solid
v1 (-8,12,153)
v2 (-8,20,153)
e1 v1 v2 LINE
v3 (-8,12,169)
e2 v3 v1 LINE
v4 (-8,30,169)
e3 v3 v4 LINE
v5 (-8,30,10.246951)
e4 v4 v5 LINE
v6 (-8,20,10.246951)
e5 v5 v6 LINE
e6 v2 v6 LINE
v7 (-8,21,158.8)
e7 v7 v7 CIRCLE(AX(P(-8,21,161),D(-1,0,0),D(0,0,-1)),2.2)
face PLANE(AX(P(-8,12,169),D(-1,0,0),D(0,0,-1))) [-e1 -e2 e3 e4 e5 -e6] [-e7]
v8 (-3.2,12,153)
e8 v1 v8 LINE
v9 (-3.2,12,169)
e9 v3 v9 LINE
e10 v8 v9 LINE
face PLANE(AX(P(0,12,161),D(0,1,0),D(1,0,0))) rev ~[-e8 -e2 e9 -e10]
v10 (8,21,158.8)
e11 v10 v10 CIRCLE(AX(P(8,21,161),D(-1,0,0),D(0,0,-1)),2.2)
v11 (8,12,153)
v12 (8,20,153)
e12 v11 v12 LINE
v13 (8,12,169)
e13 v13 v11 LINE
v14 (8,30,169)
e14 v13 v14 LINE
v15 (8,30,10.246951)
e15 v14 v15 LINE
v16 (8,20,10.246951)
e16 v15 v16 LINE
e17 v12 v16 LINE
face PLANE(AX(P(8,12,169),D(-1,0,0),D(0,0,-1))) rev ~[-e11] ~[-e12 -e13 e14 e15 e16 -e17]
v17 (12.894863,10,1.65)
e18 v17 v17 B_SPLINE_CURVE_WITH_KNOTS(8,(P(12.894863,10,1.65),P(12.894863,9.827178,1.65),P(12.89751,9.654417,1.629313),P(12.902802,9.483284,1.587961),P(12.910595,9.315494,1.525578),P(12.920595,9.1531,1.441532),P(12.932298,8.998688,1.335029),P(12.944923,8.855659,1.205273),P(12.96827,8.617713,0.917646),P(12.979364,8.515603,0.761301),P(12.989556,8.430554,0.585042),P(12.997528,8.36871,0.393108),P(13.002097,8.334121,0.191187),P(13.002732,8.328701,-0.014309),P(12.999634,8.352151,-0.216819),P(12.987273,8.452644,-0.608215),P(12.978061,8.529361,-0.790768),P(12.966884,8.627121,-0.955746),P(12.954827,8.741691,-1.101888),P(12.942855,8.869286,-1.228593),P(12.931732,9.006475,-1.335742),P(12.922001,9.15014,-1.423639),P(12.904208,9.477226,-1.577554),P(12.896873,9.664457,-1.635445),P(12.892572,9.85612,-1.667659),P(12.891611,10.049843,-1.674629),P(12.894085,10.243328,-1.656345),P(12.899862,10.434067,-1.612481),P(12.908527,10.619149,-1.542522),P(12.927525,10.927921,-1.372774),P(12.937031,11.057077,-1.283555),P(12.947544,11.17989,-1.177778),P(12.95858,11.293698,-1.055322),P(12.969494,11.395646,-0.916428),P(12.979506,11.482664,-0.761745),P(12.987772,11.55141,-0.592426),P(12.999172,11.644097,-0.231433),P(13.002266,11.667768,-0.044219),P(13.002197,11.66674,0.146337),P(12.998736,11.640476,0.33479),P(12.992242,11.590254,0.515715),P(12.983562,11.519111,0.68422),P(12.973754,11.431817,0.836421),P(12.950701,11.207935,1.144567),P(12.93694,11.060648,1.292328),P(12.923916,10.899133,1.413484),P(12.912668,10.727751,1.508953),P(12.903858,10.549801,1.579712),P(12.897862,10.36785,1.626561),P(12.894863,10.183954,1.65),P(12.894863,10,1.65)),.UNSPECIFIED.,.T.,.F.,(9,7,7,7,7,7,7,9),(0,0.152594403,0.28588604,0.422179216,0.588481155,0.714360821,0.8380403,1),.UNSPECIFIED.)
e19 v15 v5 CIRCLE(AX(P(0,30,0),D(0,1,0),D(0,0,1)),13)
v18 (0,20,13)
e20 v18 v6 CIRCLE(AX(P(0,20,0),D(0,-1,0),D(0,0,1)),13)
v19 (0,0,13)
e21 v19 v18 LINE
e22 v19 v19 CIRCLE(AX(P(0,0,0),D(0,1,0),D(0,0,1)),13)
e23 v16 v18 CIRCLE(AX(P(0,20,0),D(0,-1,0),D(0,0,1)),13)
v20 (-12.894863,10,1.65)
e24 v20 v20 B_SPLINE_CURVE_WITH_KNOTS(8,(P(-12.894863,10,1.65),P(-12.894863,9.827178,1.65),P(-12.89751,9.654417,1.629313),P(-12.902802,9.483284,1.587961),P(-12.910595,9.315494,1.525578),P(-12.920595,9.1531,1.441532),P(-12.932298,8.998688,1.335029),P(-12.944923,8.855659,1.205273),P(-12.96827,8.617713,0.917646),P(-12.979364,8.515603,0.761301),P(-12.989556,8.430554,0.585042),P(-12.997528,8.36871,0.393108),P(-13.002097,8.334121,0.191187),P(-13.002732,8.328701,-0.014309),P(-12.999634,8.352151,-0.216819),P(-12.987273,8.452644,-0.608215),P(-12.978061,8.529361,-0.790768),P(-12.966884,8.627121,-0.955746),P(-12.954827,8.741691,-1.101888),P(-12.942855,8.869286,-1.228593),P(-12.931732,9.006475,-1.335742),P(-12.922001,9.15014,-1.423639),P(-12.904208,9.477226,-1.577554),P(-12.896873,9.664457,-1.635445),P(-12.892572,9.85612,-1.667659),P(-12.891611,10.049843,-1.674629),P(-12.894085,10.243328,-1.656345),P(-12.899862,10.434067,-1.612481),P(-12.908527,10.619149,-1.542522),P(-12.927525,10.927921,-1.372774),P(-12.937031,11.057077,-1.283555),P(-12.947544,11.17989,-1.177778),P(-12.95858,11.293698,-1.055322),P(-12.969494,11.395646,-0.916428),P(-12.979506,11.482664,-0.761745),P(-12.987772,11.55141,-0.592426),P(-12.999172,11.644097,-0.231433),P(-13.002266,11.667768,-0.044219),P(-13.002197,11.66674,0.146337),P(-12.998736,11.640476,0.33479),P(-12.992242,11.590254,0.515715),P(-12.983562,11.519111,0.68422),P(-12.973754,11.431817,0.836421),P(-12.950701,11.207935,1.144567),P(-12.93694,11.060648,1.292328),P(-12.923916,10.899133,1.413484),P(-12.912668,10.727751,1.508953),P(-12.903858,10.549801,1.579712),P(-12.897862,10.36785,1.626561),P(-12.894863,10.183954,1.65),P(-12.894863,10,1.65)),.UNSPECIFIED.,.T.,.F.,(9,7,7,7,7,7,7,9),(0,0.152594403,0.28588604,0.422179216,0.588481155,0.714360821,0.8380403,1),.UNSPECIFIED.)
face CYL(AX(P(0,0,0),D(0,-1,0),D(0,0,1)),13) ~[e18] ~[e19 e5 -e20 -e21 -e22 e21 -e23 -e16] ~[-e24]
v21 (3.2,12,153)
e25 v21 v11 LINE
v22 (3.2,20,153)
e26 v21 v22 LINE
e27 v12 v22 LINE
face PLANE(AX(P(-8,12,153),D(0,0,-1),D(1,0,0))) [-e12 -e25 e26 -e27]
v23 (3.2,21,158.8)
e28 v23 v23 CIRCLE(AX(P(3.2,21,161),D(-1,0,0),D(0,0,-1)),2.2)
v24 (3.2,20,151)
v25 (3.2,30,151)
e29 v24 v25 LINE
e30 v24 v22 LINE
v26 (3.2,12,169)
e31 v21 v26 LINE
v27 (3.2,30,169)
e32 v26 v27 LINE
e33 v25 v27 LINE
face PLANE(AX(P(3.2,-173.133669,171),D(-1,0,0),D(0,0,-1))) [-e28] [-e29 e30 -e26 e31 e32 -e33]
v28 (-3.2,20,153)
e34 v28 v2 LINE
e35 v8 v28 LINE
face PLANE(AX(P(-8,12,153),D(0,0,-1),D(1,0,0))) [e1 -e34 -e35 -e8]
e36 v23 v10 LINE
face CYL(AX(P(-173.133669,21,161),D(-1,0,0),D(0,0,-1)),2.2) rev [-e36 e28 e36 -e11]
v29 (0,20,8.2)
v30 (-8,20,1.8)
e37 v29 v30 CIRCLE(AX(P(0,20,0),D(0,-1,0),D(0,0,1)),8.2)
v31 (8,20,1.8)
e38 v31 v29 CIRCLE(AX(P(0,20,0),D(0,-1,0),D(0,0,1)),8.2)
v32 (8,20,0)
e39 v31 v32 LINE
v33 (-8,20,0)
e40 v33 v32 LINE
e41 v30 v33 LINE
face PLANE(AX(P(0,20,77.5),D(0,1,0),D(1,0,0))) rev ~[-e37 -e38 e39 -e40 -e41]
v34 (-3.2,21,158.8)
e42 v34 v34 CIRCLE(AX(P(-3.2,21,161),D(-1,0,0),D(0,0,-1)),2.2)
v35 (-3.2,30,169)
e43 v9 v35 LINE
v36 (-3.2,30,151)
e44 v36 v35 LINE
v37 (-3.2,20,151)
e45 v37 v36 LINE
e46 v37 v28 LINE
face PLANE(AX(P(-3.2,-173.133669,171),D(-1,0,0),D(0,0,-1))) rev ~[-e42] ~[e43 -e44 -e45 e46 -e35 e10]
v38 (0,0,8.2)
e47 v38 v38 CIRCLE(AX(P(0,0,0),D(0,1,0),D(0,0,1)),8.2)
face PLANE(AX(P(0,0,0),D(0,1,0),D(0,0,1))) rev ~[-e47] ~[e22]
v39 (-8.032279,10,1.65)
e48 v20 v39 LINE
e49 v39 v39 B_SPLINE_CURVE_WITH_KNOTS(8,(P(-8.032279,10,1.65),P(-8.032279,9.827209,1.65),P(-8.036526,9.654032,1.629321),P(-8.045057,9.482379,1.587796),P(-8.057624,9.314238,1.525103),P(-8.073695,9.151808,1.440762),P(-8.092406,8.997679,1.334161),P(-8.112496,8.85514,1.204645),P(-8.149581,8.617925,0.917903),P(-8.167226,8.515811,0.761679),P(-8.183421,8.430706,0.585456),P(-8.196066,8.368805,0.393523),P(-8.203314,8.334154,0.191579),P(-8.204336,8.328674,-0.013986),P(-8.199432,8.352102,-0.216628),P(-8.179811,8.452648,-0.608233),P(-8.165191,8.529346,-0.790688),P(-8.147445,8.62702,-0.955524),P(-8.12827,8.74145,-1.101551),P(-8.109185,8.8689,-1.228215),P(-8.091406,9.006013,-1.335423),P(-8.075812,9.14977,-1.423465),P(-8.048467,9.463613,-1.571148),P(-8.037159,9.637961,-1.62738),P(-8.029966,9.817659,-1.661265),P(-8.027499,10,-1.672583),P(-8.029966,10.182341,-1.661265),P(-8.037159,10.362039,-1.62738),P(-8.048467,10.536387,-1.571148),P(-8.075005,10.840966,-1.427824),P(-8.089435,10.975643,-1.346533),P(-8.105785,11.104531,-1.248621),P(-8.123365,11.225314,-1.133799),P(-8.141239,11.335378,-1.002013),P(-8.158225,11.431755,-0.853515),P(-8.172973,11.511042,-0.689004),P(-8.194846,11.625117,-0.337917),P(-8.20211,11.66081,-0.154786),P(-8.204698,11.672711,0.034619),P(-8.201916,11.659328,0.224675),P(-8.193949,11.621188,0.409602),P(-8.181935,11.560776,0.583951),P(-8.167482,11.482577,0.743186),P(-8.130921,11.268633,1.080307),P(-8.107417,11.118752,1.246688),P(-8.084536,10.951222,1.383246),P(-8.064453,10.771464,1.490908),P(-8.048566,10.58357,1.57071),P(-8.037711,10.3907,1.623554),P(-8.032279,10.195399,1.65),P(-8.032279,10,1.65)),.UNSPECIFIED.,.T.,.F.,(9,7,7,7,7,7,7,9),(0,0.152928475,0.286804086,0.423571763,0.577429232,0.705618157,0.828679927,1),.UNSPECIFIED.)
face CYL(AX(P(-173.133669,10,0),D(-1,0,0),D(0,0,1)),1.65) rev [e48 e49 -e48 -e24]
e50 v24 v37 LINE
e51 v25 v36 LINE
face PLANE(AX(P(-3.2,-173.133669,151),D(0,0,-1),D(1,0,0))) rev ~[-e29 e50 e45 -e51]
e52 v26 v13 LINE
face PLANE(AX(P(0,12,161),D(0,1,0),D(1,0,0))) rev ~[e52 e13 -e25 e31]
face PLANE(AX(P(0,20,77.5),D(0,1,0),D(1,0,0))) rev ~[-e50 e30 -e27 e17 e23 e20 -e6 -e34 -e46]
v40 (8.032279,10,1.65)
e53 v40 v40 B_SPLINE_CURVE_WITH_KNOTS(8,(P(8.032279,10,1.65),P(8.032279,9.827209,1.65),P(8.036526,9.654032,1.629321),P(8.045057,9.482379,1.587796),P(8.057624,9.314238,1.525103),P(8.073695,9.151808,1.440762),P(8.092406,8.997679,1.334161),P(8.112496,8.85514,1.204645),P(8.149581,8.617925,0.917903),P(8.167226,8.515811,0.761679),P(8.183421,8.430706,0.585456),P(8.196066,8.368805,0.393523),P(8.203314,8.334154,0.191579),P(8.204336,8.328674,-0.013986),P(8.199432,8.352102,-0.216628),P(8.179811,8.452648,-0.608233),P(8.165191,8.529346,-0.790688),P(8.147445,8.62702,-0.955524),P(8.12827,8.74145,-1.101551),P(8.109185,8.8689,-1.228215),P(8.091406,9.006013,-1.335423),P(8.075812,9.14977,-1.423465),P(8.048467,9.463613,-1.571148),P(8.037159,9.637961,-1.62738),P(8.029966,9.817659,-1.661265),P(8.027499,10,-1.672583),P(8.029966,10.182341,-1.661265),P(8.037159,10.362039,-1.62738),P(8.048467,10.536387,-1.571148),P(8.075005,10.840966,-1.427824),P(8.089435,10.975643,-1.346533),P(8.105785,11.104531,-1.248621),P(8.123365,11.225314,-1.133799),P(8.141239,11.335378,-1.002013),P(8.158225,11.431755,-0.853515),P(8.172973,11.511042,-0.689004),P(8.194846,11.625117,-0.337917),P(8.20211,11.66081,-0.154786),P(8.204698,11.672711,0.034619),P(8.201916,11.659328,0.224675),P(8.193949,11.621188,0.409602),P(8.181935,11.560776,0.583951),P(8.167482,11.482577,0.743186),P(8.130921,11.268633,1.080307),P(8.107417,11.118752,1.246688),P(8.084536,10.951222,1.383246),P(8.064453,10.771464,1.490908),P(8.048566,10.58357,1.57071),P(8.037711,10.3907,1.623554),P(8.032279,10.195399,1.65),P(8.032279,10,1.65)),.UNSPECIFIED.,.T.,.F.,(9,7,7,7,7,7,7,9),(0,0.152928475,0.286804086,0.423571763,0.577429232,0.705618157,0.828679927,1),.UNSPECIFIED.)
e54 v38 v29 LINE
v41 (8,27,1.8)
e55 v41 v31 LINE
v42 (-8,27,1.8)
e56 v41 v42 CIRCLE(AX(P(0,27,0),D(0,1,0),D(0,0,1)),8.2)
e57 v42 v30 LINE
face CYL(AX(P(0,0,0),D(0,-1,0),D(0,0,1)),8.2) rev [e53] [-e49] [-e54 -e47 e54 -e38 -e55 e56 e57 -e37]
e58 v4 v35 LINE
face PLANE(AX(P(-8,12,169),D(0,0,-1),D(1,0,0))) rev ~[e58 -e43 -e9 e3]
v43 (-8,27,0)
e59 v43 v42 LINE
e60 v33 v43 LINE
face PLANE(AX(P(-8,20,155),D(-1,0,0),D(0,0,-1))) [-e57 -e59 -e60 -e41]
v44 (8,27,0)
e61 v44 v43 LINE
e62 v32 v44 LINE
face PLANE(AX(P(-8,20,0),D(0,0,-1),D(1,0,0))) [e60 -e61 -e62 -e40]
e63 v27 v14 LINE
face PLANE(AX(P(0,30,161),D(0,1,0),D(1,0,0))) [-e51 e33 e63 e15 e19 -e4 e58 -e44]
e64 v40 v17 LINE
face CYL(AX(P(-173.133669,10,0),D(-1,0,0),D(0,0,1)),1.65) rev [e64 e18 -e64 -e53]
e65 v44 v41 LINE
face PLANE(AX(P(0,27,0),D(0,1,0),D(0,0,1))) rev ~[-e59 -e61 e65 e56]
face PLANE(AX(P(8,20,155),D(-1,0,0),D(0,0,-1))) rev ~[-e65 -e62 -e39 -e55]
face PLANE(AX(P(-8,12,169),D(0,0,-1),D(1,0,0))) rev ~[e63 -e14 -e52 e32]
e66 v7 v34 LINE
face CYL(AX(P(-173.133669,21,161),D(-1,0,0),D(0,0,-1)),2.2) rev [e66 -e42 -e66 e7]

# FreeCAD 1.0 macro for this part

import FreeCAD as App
import Part
import Sketcher
Q = App.Units.Quantity

doc = App.newDocument("Part")
body = doc.addObject("PartDesign::Body", "Body")

# Sketch on XZ plane
sketch1 = doc.addObject("Sketcher::SketchObject", "Sketch")
body.addObject(sketch1)
sketch1.AttachmentSupport = (doc.XZ_Plane, [""])
sketch1.MapMode = "FlatFace"
sketch1.addGeometry(Part.Circle(App.Vector(0, 0, 0), App.Vector(0, 0, 1), 13), False)
sketch1.addConstraint([
    Sketcher.Constraint("Coincident", 0, 3, -1, 1),
    Sketcher.Constraint("Diameter", 0, Q("26 mm")),
])
pad1 = doc.addObject("PartDesign::Pad", "Pad")
body.addObject(pad1)
pad1.Profile = sketch1
pad1.Length = 30
pad1.Reversed = True

# Sketch on XZ plane
sketch2 = doc.addObject("Sketcher::SketchObject", "Sketch001")
body.addObject(sketch2)
sketch2.AttachmentSupport = (doc.XZ_Plane, [""])
sketch2.MapMode = "FlatFace"
sketch2.addGeometry(Part.Circle(App.Vector(0, 0, 0), App.Vector(0, 0, 1), 8.2), False)
sketch2.addConstraint([
    Sketcher.Constraint("Coincident", 0, 3, -1, 1),
    Sketcher.Constraint("Diameter", 0, Q("16.4 mm")),
])
pocket1 = doc.addObject("PartDesign::Pocket", "Pocket")
body.addObject(pocket1)
pocket1.Profile = sketch2
pocket1.Length = 27

# Sketch on XZ plane
sketch3 = doc.addObject("Sketcher::SketchObject", "Sketch002")
body.addObject(sketch3)
sketch3.AttachmentSupport = (doc.XZ_Plane, [""])
sketch3.MapMode = "FlatFace"
sketch3.AttachmentOffset = App.Placement(App.Vector(0, 0, -20), App.Rotation())
sketch3.addGeometry([
    Part.LineSegment(App.Vector(-8, 0, 0), App.Vector(-8, 155, 0)),
    Part.LineSegment(App.Vector(-8, 155, 0), App.Vector(8, 155, 0)),
    Part.LineSegment(App.Vector(8, 155, 0), App.Vector(8, 0, 0)),
    Part.LineSegment(App.Vector(8, 0, 0), App.Vector(-8, 0, 0)),
], False)
sketch3.addConstraint([
    Sketcher.Constraint("Coincident", 0, 2, 1, 1),
    Sketcher.Constraint("Coincident", 1, 2, 2, 1),
    Sketcher.Constraint("Coincident", 2, 2, 3, 1),
    Sketcher.Constraint("Coincident", 3, 2, 0, 1),
    Sketcher.Constraint("Vertical", 0),
    Sketcher.Constraint("Horizontal", 1),
    Sketcher.Constraint("Vertical", 2),
    Sketcher.Constraint("Horizontal", 3),
    Sketcher.Constraint("Symmetric", 2, 2, 3, 2, -1, 1),
    Sketcher.Constraint("DistanceX", 1, 1, 1, 2, Q("16 mm")),
    Sketcher.Constraint("DistanceY", 0, 1, 0, 2, Q("155 mm")),
])
pad2 = doc.addObject("PartDesign::Pad", "Pad001")
body.addObject(pad2)
pad2.Profile = sketch3
pad2.Length = 10
pad2.Reversed = True

# Sketch on XZ plane
sketch4 = doc.addObject("Sketcher::SketchObject", "Sketch003")
body.addObject(sketch4)
sketch4.AttachmentSupport = (doc.XZ_Plane, [""])
sketch4.MapMode = "FlatFace"
sketch4.AttachmentOffset = App.Placement(App.Vector(0, 0, -12), App.Rotation())
sketch4.addGeometry([
    Part.LineSegment(App.Vector(-8, 153, 0), App.Vector(-8, 169, 0)),
    Part.LineSegment(App.Vector(-8, 169, 0), App.Vector(8, 169, 0)),
    Part.LineSegment(App.Vector(8, 169, 0), App.Vector(8, 153, 0)),
    Part.LineSegment(App.Vector(8, 153, 0), App.Vector(-8, 153, 0)),
], False)
sketch4.addConstraint([
    Sketcher.Constraint("Coincident", 0, 2, 1, 1),
    Sketcher.Constraint("Coincident", 1, 2, 2, 1),
    Sketcher.Constraint("Coincident", 2, 2, 3, 1),
    Sketcher.Constraint("Coincident", 3, 2, 0, 1),
    Sketcher.Constraint("Vertical", 0),
    Sketcher.Constraint("Horizontal", 1),
    Sketcher.Constraint("Vertical", 2),
    Sketcher.Constraint("Horizontal", 3),
    Sketcher.Constraint("Equal", 3, 0),
    Sketcher.Constraint("DistanceX", 1, 1, 1, 2, Q("16 mm")),
    Sketcher.Constraint("DistanceX", 0, 2, -1, 1, Q("8 mm")),
    Sketcher.Constraint("DistanceY", -1, 1, 0, 2, Q("169 mm")),
])
pad3 = doc.addObject("PartDesign::Pad", "Pad002")
body.addObject(pad3)
pad3.Profile = sketch4
pad3.Length = 18
pad3.Reversed = True

# Sketch on XZ plane
sketch5 = doc.addObject("Sketcher::SketchObject", "Sketch004")
body.addObject(sketch5)
sketch5.AttachmentSupport = (doc.XZ_Plane, [""])
sketch5.MapMode = "FlatFace"
sketch5.addGeometry([
    Part.LineSegment(App.Vector(-3.2, 151, 0), App.Vector(-3.2, 171, 0)),
    Part.LineSegment(App.Vector(-3.2, 171, 0), App.Vector(3.2, 171, 0)),
    Part.LineSegment(App.Vector(3.2, 171, 0), App.Vector(3.2, 151, 0)),
    Part.LineSegment(App.Vector(3.2, 151, 0), App.Vector(-3.2, 151, 0)),
], False)
sketch5.addConstraint([
    Sketcher.Constraint("Coincident", 0, 2, 1, 1),
    Sketcher.Constraint("Coincident", 1, 2, 2, 1),
    Sketcher.Constraint("Coincident", 2, 2, 3, 1),
    Sketcher.Constraint("Coincident", 3, 2, 0, 1),
    Sketcher.Constraint("Vertical", 0),
    Sketcher.Constraint("Horizontal", 1),
    Sketcher.Constraint("Vertical", 2),
    Sketcher.Constraint("Horizontal", 3),
    Sketcher.Constraint("DistanceY", 0, 1, 0, 2, Q("20 mm")),
    Sketcher.Constraint("DistanceX", 1, 1, 1, 2, Q("6.4 mm")),
    Sketcher.Constraint("DistanceY", -1, 1, 0, 2, Q("171 mm")),
    Sketcher.Constraint("DistanceX", 0, 2, -1, 1, Q("3.2 mm")),
])
pocket2 = doc.addObject("PartDesign::Pocket", "Pocket001")
body.addObject(pocket2)
pocket2.Profile = sketch5
pocket2.Type = "ThroughAll"
pocket2.Midplane = True

# Sketch on YZ plane
sketch6 = doc.addObject("Sketcher::SketchObject", "Sketch005")
body.addObject(sketch6)
sketch6.AttachmentSupport = (doc.YZ_Plane, [""])
sketch6.MapMode = "FlatFace"
sketch6.addGeometry([
    Part.Circle(App.Vector(21, 161, 0), App.Vector(0, 0, 1), 2.2),
    Part.Circle(App.Vector(10, 0, 0), App.Vector(0, 0, 1), 1.65),
], False)
sketch6.addConstraint([
    Sketcher.Constraint("PointOnObject", 1, 3, -1),
    Sketcher.Constraint("Diameter", 0, Q("4.4 mm")),
    Sketcher.Constraint("Diameter", 1, Q("3.3 mm")),
    Sketcher.Constraint("DistanceX", -1, 1, 0, 3, Q("21 mm")),
    Sketcher.Constraint("DistanceY", -1, 1, 0, 3, Q("161 mm")),
    Sketcher.Constraint("DistanceX", -1, 1, 1, 3, Q("10 mm")),
])
pocket3 = doc.addObject("PartDesign::Pocket", "Pocket002")
body.addObject(pocket3)
pocket3.Profile = sketch6
pocket3.Type = "ThroughAll"
pocket3.Midplane = True

doc.recompute()
